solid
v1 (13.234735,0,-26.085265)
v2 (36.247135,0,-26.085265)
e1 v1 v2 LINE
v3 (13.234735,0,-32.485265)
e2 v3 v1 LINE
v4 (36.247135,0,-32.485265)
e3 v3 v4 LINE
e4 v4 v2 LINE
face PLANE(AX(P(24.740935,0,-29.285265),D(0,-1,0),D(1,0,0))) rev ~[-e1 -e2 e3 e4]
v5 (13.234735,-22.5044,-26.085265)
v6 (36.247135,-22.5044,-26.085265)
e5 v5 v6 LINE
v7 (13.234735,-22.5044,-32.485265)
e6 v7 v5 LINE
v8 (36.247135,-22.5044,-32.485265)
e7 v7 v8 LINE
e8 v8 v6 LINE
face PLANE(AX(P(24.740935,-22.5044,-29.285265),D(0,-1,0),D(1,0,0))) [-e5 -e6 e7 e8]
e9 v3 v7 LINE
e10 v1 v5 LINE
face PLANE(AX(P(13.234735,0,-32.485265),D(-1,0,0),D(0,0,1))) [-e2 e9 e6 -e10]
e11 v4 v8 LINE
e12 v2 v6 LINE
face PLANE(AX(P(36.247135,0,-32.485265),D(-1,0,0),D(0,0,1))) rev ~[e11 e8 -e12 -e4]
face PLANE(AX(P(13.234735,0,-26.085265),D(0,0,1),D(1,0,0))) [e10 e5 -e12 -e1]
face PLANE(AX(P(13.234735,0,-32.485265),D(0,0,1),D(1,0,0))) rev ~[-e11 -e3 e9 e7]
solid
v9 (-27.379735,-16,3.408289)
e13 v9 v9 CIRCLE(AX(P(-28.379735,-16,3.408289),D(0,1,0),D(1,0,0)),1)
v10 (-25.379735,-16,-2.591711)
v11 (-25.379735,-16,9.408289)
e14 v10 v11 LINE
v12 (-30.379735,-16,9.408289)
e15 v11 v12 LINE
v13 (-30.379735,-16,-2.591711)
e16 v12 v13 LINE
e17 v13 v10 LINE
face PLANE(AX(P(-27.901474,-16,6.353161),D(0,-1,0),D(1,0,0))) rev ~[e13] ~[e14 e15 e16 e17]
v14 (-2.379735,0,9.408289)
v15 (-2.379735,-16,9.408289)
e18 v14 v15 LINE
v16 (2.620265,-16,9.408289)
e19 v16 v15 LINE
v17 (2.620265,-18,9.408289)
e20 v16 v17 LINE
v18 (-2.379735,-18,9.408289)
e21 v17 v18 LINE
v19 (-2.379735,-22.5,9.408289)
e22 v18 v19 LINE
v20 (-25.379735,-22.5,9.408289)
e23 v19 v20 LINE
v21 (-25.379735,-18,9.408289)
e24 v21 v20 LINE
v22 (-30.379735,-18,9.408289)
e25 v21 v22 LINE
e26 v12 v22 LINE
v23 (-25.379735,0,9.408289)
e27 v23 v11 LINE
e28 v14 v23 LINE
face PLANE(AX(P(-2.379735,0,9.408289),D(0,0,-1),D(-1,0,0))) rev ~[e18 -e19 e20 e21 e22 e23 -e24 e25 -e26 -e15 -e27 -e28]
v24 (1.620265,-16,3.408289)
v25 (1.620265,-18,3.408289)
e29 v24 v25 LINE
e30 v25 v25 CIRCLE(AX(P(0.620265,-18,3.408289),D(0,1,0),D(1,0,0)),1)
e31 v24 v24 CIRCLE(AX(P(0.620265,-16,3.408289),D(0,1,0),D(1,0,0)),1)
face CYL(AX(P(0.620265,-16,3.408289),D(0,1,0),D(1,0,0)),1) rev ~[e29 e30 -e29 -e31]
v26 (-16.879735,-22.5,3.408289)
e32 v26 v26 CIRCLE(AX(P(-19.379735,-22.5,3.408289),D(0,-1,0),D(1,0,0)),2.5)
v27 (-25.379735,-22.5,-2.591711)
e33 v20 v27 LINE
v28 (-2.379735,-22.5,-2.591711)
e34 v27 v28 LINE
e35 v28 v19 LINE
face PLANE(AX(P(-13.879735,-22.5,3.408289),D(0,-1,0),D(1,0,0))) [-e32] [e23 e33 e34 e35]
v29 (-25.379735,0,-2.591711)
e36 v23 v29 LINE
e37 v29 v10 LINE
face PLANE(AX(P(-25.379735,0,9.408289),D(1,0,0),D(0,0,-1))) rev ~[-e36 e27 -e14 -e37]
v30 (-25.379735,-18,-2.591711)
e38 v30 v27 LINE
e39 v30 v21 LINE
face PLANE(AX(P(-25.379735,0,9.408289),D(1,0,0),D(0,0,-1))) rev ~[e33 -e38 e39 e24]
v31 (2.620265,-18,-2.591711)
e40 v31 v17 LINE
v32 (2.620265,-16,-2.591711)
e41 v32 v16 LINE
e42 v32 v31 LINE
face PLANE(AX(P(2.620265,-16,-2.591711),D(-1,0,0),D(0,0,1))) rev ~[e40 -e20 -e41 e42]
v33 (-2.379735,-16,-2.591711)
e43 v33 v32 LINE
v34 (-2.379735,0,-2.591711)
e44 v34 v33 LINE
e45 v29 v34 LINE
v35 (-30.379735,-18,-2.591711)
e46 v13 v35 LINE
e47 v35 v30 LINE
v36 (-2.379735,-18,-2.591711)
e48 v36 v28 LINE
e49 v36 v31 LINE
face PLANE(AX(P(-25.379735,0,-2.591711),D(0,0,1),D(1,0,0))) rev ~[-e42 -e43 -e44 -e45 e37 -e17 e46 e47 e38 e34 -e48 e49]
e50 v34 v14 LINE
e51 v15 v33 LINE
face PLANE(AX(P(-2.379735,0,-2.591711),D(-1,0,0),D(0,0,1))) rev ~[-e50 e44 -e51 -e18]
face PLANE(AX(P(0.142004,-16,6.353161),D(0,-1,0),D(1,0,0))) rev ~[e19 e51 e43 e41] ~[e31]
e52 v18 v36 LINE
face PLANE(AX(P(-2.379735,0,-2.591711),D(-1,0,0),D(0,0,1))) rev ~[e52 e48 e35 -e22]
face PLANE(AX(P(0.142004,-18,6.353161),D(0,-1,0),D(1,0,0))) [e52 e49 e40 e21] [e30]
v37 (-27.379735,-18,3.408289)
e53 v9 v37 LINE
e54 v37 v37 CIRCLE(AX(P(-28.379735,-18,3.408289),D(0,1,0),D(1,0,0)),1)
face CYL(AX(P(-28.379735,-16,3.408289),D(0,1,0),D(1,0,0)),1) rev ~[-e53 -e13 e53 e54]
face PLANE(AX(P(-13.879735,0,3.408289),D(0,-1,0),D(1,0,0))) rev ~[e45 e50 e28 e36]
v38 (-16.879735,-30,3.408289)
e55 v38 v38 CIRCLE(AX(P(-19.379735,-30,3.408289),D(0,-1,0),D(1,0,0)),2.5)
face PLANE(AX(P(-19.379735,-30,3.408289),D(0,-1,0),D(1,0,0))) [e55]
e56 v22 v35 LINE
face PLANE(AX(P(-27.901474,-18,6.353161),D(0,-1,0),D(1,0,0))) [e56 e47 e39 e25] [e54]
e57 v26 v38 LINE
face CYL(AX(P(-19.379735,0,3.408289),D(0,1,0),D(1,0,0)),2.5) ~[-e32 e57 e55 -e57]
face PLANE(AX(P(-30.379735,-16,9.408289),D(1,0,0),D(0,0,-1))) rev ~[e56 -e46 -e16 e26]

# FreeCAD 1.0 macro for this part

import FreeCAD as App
import Part
import Sketcher

V = App.Vector
Q = App.Units.Quantity

doc = App.newDocument("Part")
params = doc.addObject("Spreadsheet::Sheet", "Params")
for row, (alias, value) in enumerate([
    ("sketch1_diameter", "5 mm"),
    ("pad1_length", "30 mm"),
    ("sketch2_diameter", "5 mm"),
    ("sketch2_width", "23 mm"),
    ("sketch2_height", "12 mm"),
    ("pad2_length", "22.5 mm"),
    ("sketch3_diameter", "2 mm"),
    ("sketch3_width", "5 mm"),
    ("sketch3_height", "12 mm"),
    ("pad3_length", "2 mm"),
    ("sketch4_height", "6.4 mm"),
    ("pad4_length", "22.5044 mm"),
], start=1):
    params.set(f"A{row}", alias)
    params.set(f"B{row}", "=" + value)
    params.setAlias(f"B{row}", alias)

body = doc.addObject("PartDesign::Body", "Body")

# Sketch on XZ plane
sketch1 = body.newObject("Sketcher::SketchObject", "Sketch")
sketch1.AttachmentSupport = (doc.getObject("XZ_Plane"), [""])
sketch1.MapMode = "FlatFace"
sketch1.addGeometry(Part.Circle(V(-19.4, 3.4, 0), V(0, 0, 1), 2.5), False)
sketch1.addConstraint(Sketcher.Constraint("Diameter", 0, Q("5 mm")))
sketch1.addConstraint(Sketcher.Constraint("DistanceY", -1, 1, 0, 3, Q("3.408289 mm")))
sketch1.addConstraint(Sketcher.Constraint("DistanceX", 0, 3, -1, 1, Q("19.379735 mm")))
sketch1.setExpression("Constraints[0]", "Params.sketch1_diameter")
pad1 = body.newObject("PartDesign::Pad", "Pad")
pad1.Profile = sketch1
pad1.setExpression("Length", "Params.pad1_length")

# Sketch on XZ plane
sketch2 = body.newObject("Sketcher::SketchObject", "Sketch001")
sketch2.AttachmentSupport = (doc.getObject("XZ_Plane"), [""])
sketch2.MapMode = "FlatFace"
sketch2.addGeometry(Part.LineSegment(V(-2.4, 9.4, 0), V(-25.4, 9.4, 0)), False)
sketch2.addGeometry(Part.LineSegment(V(-25.4, 9.4, 0), V(-25.4, -2.6, 0)), False)
sketch2.addGeometry(Part.LineSegment(V(-25.4, -2.6, 0), V(-2.4, -2.6, 0)), False)
sketch2.addGeometry(Part.LineSegment(V(-2.4, -2.6, 0), V(-2.4, 9.4, 0)), False)
sketch2.addGeometry(Part.Circle(V(-19.4, 3.4, 0), V(0, 0, 1), 2.5), False)
sketch2.addConstraint(Sketcher.Constraint("Coincident", 0, 2, 1, 1))
sketch2.addConstraint(Sketcher.Constraint("Coincident", 1, 2, 2, 1))
sketch2.addConstraint(Sketcher.Constraint("Coincident", 2, 2, 3, 1))
sketch2.addConstraint(Sketcher.Constraint("Coincident", 3, 2, 0, 1))
sketch2.addConstraint(Sketcher.Constraint("Horizontal", 0))
sketch2.addConstraint(Sketcher.Constraint("Vertical", 1))
sketch2.addConstraint(Sketcher.Constraint("Horizontal", 2))
sketch2.addConstraint(Sketcher.Constraint("Vertical", 3))
sketch2.addConstraint(Sketcher.Constraint("Diameter", 4, Q("5 mm")))
sketch2.addConstraint(Sketcher.Constraint("DistanceX", 0, 2, 0, 1, Q("23 mm")))
sketch2.addConstraint(Sketcher.Constraint("DistanceY", 1, 2, 1, 1, Q("12 mm")))
sketch2.addConstraint(Sketcher.Constraint("DistanceX", 0, 2, 4, 3, Q("6 mm")))
sketch2.addConstraint(Sketcher.Constraint("DistanceY", 4, 3, 0, 2, Q("6 mm")))
sketch2.addConstraint(Sketcher.Constraint("DistanceY", -1, 1, 4, 3, Q("3.408289 mm")))
sketch2.addConstraint(Sketcher.Constraint("DistanceX", 4, 3, -1, 1, Q("19.379735 mm")))
sketch2.setExpression("Constraints[8]", "Params.sketch2_diameter")
sketch2.setExpression("Constraints[9]", "Params.sketch2_width")
sketch2.setExpression("Constraints[10]", "Params.sketch2_height")
pad2 = body.newObject("PartDesign::Pad", "Pad001")
pad2.Profile = sketch2
pad2.setExpression("Length", "Params.pad2_length")

# Sketch on XZ plane
sketch3 = body.newObject("Sketcher::SketchObject", "Sketch002")
sketch3.AttachmentSupport = (doc.getObject("XZ_Plane"), [""])
sketch3.MapMode = "FlatFace"
sketch3.AttachmentOffset = App.Placement(V(0, 0, 16), App.Rotation())
sketch3.addGeometry(Part.LineSegment(V(2.6, 9.4, 0), V(-2.4, 9.4, 0)), False)
sketch3.addGeometry(Part.LineSegment(V(-2.4, 9.4, 0), V(-2.4, -2.6, 0)), False)
sketch3.addGeometry(Part.LineSegment(V(-2.4, -2.6, 0), V(2.6, -2.6, 0)), False)
sketch3.addGeometry(Part.LineSegment(V(2.6, -2.6, 0), V(2.6, 9.4, 0)), False)
sketch3.addGeometry(Part.Circle(V(0.6, 3.4, 0), V(0, 0, 1), 1), False)
sketch3.addGeometry(Part.LineSegment(V(-25.4, 9.4, 0), V(-30.4, 9.4, 0)), False)
sketch3.addGeometry(Part.LineSegment(V(-30.4, 9.4, 0), V(-30.4, -2.6, 0)), False)
sketch3.addGeometry(Part.LineSegment(V(-30.4, -2.6, 0), V(-25.4, -2.6, 0)), False)
sketch3.addGeometry(Part.LineSegment(V(-25.4, -2.6, 0), V(-25.4, 9.4, 0)), False)
sketch3.addGeometry(Part.Circle(V(-28.4, 3.4, 0), V(0, 0, 1), 1), False)
sketch3.addConstraint(Sketcher.Constraint("Coincident", 0, 2, 1, 1))
sketch3.addConstraint(Sketcher.Constraint("Coincident", 1, 2, 2, 1))
sketch3.addConstraint(Sketcher.Constraint("Coincident", 2, 2, 3, 1))
sketch3.addConstraint(Sketcher.Constraint("Coincident", 3, 2, 0, 1))
sketch3.addConstraint(Sketcher.Constraint("Coincident", 5, 2, 6, 1))
sketch3.addConstraint(Sketcher.Constraint("Coincident", 6, 2, 7, 1))
sketch3.addConstraint(Sketcher.Constraint("Coincident", 7, 2, 8, 1))
sketch3.addConstraint(Sketcher.Constraint("Coincident", 8, 2, 5, 1))
sketch3.addConstraint(Sketcher.Constraint("Horizontal", 0))
sketch3.addConstraint(Sketcher.Constraint("Vertical", 1))
sketch3.addConstraint(Sketcher.Constraint("Horizontal", 2))
sketch3.addConstraint(Sketcher.Constraint("Vertical", 3))
sketch3.addConstraint(Sketcher.Constraint("Horizontal", 5))
sketch3.addConstraint(Sketcher.Constraint("Vertical", 6))
sketch3.addConstraint(Sketcher.Constraint("Horizontal", 7))
sketch3.addConstraint(Sketcher.Constraint("Vertical", 8))
sketch3.addConstraint(Sketcher.Constraint("Equal", 4, 9))
sketch3.addConstraint(Sketcher.Constraint("Horizontal", 4, 3, 9, 3))
sketch3.addConstraint(Sketcher.Constraint("Horizontal", 3, 2, 5, 2))
sketch3.addConstraint(Sketcher.Constraint("Horizontal", 2, 2, 6, 2))
sketch3.addConstraint(Sketcher.Constraint("Equal", 2, 5))
sketch3.addConstraint(Sketcher.Constraint("Diameter", 4, Q("2 mm")))
sketch3.addConstraint(Sketcher.Constraint("DistanceX", 0, 2, 0, 1, Q("5 mm")))
sketch3.addConstraint(Sketcher.Constraint("DistanceY", 1, 2, 1, 1, Q("12 mm")))
sketch3.addConstraint(Sketcher.Constraint("DistanceX", 9, 3, 4, 3, Q("29 mm")))
sketch3.addConstraint(Sketcher.Constraint("DistanceX", 0, 2, 4, 3, Q("3 mm")))
sketch3.addConstraint(Sketcher.Constraint("DistanceY", 4, 3, 0, 2, Q("6 mm")))
sketch3.addConstraint(Sketcher.Constraint("DistanceX", 5, 2, 9, 3, Q("2 mm")))
sketch3.addConstraint(Sketcher.Constraint("DistanceY", -1, 1, 4, 3, Q("3.408289 mm")))
sketch3.addConstraint(Sketcher.Constraint("DistanceX", -1, 1, 4, 3, Q("0.620265 mm")))
sketch3.setExpression("Constraints[21]", "Params.sketch3_diameter")
sketch3.setExpression("Constraints[22]", "Params.sketch3_width")
sketch3.setExpression("Constraints[23]", "Params.sketch3_height")
pad3 = body.newObject("PartDesign::Pad", "Pad002")
pad3.Profile = sketch3
pad3.setExpression("Length", "Params.pad3_length")
body2 = doc.addObject("PartDesign::Body", "Body001")

# Sketch on XZ plane
sketch4 = body2.newObject("Sketcher::SketchObject", "Sketch003")
sketch4.AttachmentSupport = (doc.getObject("XZ_Plane001"), [""])
sketch4.MapMode = "FlatFace"
sketch4.addGeometry(Part.LineSegment(V(13, -26, 0), V(13, -32, 0)), False)
sketch4.addGeometry(Part.LineSegment(V(13, -32, 0), V(36, -32, 0)), False)
sketch4.addGeometry(Part.LineSegment(V(36, -32, 0), V(36, -26, 0)), False)
sketch4.addGeometry(Part.LineSegment(V(36, -26, 0), V(13, -26, 0)), False)
sketch4.addConstraint(Sketcher.Constraint("Coincident", 0, 2, 1, 1))
sketch4.addConstraint(Sketcher.Constraint("Coincident", 1, 2, 2, 1))
sketch4.addConstraint(Sketcher.Constraint("Coincident", 2, 2, 3, 1))
sketch4.addConstraint(Sketcher.Constraint("Coincident", 3, 2, 0, 1))
sketch4.addConstraint(Sketcher.Constraint("Vertical", 0))
sketch4.addConstraint(Sketcher.Constraint("Horizontal", 1))
sketch4.addConstraint(Sketcher.Constraint("Vertical", 2))
sketch4.addConstraint(Sketcher.Constraint("Horizontal", 3))
sketch4.addConstraint(Sketcher.Constraint("DistanceY", 0, 2, 0, 1, Q("6.4 mm")))
sketch4.addConstraint(Sketcher.Constraint("DistanceX", 1, 1, 1, 2, Q("23.0124 mm")))
sketch4.addConstraint(Sketcher.Constraint("DistanceX", -1, 1, 0, 2, Q("13.234735 mm")))
sketch4.addConstraint(Sketcher.Constraint("DistanceY", 0, 2, -1, 1, Q("32.485265 mm")))
sketch4.setExpression("Constraints[8]", "Params.sketch4_height")
pad4 = body2.newObject("PartDesign::Pad", "Pad003")
pad4.Profile = sketch4
pad4.setExpression("Length", "Params.pad4_length")

doc.recompute()
